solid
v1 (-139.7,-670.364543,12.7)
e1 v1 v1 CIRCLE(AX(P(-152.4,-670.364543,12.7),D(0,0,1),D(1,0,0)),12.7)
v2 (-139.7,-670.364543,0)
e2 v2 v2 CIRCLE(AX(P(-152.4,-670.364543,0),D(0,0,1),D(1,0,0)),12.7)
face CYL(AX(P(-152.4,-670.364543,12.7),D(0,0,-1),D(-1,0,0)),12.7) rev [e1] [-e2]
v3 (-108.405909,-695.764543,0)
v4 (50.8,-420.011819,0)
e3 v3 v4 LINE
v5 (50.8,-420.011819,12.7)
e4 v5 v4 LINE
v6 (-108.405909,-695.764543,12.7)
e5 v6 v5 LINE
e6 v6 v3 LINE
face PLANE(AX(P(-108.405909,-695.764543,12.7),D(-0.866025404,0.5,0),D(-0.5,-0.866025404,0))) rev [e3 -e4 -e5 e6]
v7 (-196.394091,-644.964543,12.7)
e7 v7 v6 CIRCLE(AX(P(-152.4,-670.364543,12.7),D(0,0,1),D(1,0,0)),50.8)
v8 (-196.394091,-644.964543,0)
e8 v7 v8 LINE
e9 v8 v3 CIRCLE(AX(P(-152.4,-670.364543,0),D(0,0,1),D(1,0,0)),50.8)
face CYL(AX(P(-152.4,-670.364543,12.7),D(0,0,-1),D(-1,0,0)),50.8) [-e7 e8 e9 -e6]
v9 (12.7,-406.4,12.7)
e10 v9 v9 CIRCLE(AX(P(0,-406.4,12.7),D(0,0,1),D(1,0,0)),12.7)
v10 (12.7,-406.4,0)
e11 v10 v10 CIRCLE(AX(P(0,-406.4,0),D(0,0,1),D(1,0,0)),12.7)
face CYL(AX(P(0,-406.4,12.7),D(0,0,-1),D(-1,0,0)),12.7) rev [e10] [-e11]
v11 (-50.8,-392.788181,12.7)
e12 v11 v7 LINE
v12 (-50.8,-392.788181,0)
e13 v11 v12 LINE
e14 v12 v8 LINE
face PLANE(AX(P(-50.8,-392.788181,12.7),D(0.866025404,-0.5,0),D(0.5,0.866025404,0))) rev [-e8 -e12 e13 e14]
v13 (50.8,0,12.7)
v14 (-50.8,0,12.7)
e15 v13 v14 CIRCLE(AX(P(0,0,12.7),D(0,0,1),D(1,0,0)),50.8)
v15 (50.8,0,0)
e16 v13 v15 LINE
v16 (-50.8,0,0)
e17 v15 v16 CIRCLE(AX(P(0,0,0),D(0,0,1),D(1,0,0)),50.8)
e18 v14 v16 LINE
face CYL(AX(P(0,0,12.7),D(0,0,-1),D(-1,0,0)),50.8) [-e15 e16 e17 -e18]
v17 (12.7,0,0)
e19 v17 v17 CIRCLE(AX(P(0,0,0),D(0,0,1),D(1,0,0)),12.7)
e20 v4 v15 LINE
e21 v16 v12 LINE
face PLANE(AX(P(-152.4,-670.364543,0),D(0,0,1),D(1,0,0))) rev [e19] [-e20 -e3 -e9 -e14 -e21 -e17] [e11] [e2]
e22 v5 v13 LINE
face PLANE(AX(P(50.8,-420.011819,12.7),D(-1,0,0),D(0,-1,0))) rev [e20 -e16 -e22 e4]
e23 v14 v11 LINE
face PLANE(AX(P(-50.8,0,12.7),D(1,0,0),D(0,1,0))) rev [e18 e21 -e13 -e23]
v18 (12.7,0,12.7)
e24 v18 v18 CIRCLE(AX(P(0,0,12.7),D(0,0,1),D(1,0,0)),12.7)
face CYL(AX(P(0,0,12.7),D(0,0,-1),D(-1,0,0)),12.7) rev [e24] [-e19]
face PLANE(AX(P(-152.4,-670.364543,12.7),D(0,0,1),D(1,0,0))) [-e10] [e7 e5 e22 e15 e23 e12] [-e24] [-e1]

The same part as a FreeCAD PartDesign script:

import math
import FreeCAD as App
import Part
import Sketcher

V = App.Vector
Q = App.Units.Quantity

doc = App.newDocument("Part")
params = doc.addObject("Spreadsheet::Sheet", "Params")
for row, (alias, value) in enumerate([
    ("sketch1_diameter", "1 in"),
    ("sketch1_radius", "2 in"),
    ("pad1_length", "0.5 in"),
], start=1):
    params.set(f"A{row}", alias)
    params.set(f"B{row}", "=" + value)
    params.setAlias(f"B{row}", alias)

body = doc.addObject("PartDesign::Body", "Body")

# Sketch on XY plane
sketch1 = doc.addObject("Sketcher::SketchObject", "Sketch")
body.addObject(sketch1)
sketch1.AttachmentSupport = (doc.XY_Plane, [""])
sketch1.MapMode = "FlatFace"
sketch1.addGeometry(Part.LineSegment(V(-108.405909, -695.764543, 0), V(50.8, -420.011819, 0)), False)
sketch1.addGeometry(Part.LineSegment(V(50.8, -420.011819, 0), V(50.8, 0, 0)), False)
sketch1.addGeometry(Part.ArcOfCircle(Part.Circle(V(0, 0, 0), V(0, 0, 1), 50.8), math.radians(0), math.radians(180)), False)
sketch1.addGeometry(Part.LineSegment(V(-50.8, 0, 0), V(-50.8, -392.788181, 0)), False)
sketch1.addGeometry(Part.LineSegment(V(-50.8, -392.788181, 0), V(-196.394091, -644.964543, 0)), False)
sketch1.addGeometry(Part.ArcOfCircle(Part.Circle(V(-152.4, -670.364543, 0), V(0, 0, 1), 50.8), math.radians(150), math.radians(330)), False)
sketch1.addGeometry(Part.Circle(V(-152.4, -670.364543, 0), V(0, 0, 1), 12.7), False)
sketch1.addGeometry(Part.Circle(V(0, -406.4, 0), V(0, 0, 1), 12.7), False)
sketch1.addGeometry(Part.Circle(V(0, 0, 0), V(0, 0, 1), 12.7), False)
sketch1.addConstraint(Sketcher.Constraint("Coincident", 0, 2, 1, 1))
sketch1.addConstraint(Sketcher.Constraint("Tangent", 1, 2, 2, 1))
sketch1.addConstraint(Sketcher.Constraint("Tangent", 2, 2, 3, 1))
sketch1.addConstraint(Sketcher.Constraint("Coincident", 3, 2, 4, 1))
sketch1.addConstraint(Sketcher.Constraint("Tangent", 4, 2, 5, 1))
sketch1.addConstraint(Sketcher.Constraint("Tangent", 5, 2, 0, 1))
sketch1.addConstraint(Sketcher.Constraint("Vertical", 1))
sketch1.addConstraint(Sketcher.Constraint("Vertical", 3))
sketch1.addConstraint(Sketcher.Constraint("Coincident", 2, 3, -1, 1))
sketch1.addConstraint(Sketcher.Constraint("Coincident", 8, 3, -1, 1))
sketch1.addConstraint(Sketcher.Constraint("Coincident", 6, 3, 5, 3))
sketch1.addConstraint(Sketcher.Constraint("Equal", 2, 5))
sketch1.addConstraint(Sketcher.Constraint("Equal", 6, 7))
sketch1.addConstraint(Sketcher.Constraint("Equal", 7, 8))
sketch1.addConstraint(Sketcher.Constraint("PointOnObject", 7, 3, -2))
sketch1.addConstraint(Sketcher.Constraint("Parallel", 0, 4))
sketch1.addConstraint(Sketcher.Constraint("Diameter", 6, Q("1 in")))
sketch1.addConstraint(Sketcher.Constraint("Radius", 2, Q("2 in")))
sketch1.addConstraint(Sketcher.Constraint("DistanceX", 5, 3, -1, 1, Q("6 in")))
sketch1.addConstraint(Sketcher.Constraint("DistanceY", 7, 3, -1, 1, Q("16 in")))
sketch1.addConstraint(Sketcher.Constraint("Angle", 0, Q("60 deg")))
sketch1.addConstraint(Sketcher.Constraint("DistanceY", 1, 1, 1, 2, 420.011819))
sketch1.setExpression("Constraints[16]", "Params.sketch1_diameter")
sketch1.setExpression("Constraints[17]", "Params.sketch1_radius")
pad1 = doc.addObject("PartDesign::Pad", "Pad")
body.addObject(pad1)
pad1.Profile = sketch1
pad1.setExpression("Length", "Params.pad1_length")

doc.recompute()
